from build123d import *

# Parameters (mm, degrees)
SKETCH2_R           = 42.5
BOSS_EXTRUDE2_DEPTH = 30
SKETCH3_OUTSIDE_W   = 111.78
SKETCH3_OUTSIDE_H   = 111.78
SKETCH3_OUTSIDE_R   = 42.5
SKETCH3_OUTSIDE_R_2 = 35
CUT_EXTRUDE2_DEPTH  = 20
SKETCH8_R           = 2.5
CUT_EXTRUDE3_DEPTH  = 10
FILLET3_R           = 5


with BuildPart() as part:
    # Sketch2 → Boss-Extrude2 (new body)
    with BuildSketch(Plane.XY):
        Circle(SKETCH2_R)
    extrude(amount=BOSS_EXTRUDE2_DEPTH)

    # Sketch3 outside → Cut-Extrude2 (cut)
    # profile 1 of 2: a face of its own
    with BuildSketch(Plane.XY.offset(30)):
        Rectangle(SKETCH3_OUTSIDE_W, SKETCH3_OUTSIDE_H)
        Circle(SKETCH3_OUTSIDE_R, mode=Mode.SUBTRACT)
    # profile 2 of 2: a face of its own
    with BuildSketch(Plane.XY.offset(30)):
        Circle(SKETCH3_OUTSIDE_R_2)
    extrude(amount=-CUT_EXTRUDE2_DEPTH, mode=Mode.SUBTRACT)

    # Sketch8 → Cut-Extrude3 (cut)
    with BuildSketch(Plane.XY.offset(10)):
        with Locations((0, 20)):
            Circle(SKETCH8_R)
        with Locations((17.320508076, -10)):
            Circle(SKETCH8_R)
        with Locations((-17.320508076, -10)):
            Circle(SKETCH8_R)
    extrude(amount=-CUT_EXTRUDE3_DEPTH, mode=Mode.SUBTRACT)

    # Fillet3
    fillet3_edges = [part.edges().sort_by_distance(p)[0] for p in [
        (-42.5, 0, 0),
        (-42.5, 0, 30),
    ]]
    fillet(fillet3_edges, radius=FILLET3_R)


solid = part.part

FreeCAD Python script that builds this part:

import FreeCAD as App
import Part
import Sketcher
from FreeCAD import Vector
Q = App.Units.Quantity


def edges_at(feature, points):
    """Names of the edges that pass closest to the given points."""
    edges = feature.Shape.Edges
    near = lambda p: min(range(len(edges)), key=lambda i: edges[i].distToShape(Part.Vertex(*p))[0])
    return sorted({f"Edge{near(p) + 1}" for p in points})

doc = App.newDocument("Part")
body = doc.addObject("PartDesign::Body", "Body")

sketch1 = body.newObject("Sketcher::SketchObject", "Sketch")
sketch1.AttachmentSupport = (doc.getObject("XY_Plane"), [""])
sketch1.MapMode = "FlatFace"
sketch1.addGeometry(Part.Circle(Vector(0, 0, 0), Vector(0, 0, 1), 42), False)
sketch1.addConstraint(Sketcher.Constraint("Coincident", 0, 3, -1, 1))
sketch1.addConstraint(Sketcher.Constraint("Diameter", 0, Q("85 mm")))
pad1 = body.newObject("PartDesign::Pad", "Pad")
pad1.Profile = sketch1
pad1.Length = 30

sketch2 = body.newObject("Sketcher::SketchObject", "Sketch001")
sketch2.AttachmentSupport = (doc.getObject("XY_Plane"), [""])
sketch2.MapMode = "FlatFace"
sketch2.AttachmentOffset = App.Placement(Vector(0, 0, 30), App.Rotation())
sketch2.addGeometry(Part.LineSegment(Vector(-56, 56, 0), Vector(-56, -56, 0)), False)
sketch2.addGeometry(Part.LineSegment(Vector(-56, -56, 0), Vector(56, -56, 0)), False)
sketch2.addGeometry(Part.LineSegment(Vector(56, -56, 0), Vector(56, 56, 0)), False)
sketch2.addGeometry(Part.LineSegment(Vector(56, 56, 0), Vector(-56, 56, 0)), False)
sketch2.addGeometry(Part.Circle(Vector(0, 0, 0), Vector(0, 0, 1), 42), False)
sketch2.addGeometry(Part.Circle(Vector(0, 0, 0), Vector(0, 0, 1), 35), False)
sketch2.addConstraint(Sketcher.Constraint("Coincident", 0, 2, 1, 1))
sketch2.addConstraint(Sketcher.Constraint("Coincident", 1, 2, 2, 1))
sketch2.addConstraint(Sketcher.Constraint("Coincident", 2, 2, 3, 1))
sketch2.addConstraint(Sketcher.Constraint("Coincident", 3, 2, 0, 1))
sketch2.addConstraint(Sketcher.Constraint("Vertical", 0))
sketch2.addConstraint(Sketcher.Constraint("Horizontal", 1))
sketch2.addConstraint(Sketcher.Constraint("Vertical", 2))
sketch2.addConstraint(Sketcher.Constraint("Horizontal", 3))
sketch2.addConstraint(Sketcher.Constraint("Coincident", 4, 3, -1, 1))
sketch2.addConstraint(Sketcher.Constraint("Coincident", 5, 3, -1, 1))
sketch2.addConstraint(Sketcher.Constraint("Symmetric", 0, 2, 2, 2, -1, 1))
sketch2.addConstraint(Sketcher.Constraint("Equal", 3, 0))
sketch2.addConstraint(Sketcher.Constraint("Diameter", 4, Q("85 mm")))
sketch2.addConstraint(Sketcher.Constraint("Diameter", 5, Q("70 mm")))
sketch2.addConstraint(Sketcher.Constraint("DistanceX", 1, 1, 1, 2, Q("111.78 mm")))
pocket1 = body.newObject("PartDesign::Pocket", "Pocket")
pocket1.Profile = sketch2
pocket1.Length = 20

sketch3 = body.newObject("Sketcher::SketchObject", "Sketch002")
sketch3.AttachmentSupport = (doc.getObject("XY_Plane"), [""])
sketch3.MapMode = "FlatFace"
sketch3.AttachmentOffset = App.Placement(Vector(0, 0, 10), App.Rotation())
sketch3.addGeometry(Part.Circle(Vector(0, 20, 0), Vector(0, 0, 1), 2.5), False)
sketch3.addGeometry(Part.Circle(Vector(17.3, -10, 0), Vector(0, 0, 1), 2.5), False)
sketch3.addGeometry(Part.Circle(Vector(-17.3, -10, 0), Vector(0, 0, 1), 2.5), False)
sketch3.addConstraint(Sketcher.Constraint("Equal", 0, 1))
sketch3.addConstraint(Sketcher.Constraint("Equal", 1, 2))
sketch3.addConstraint(Sketcher.Constraint("Symmetric", 1, 3, 2, 3, -2))
sketch3.addConstraint(Sketcher.Constraint("PointOnObject", 0, 3, -2))
sketch3.addConstraint(Sketcher.Constraint("Diameter", 0, Q("5 mm")))
sketch3.addConstraint(Sketcher.Constraint("DistanceY", -1, 1, 0, 3, Q("20 mm")))
sketch3.addConstraint(Sketcher.Constraint("DistanceY", 1, 3, -1, 1, Q("10 mm")))
sketch3.addConstraint(Sketcher.Constraint("DistanceX", -1, 1, 1, 3, Q("17.320508 mm")))
pocket2 = body.newObject("PartDesign::Pocket", "Pocket001")
pocket2.Profile = sketch3
pocket2.Length = 10
doc.recompute()

fillet = body.newObject("PartDesign::Fillet", "Fillet")
fillet.Base = (pocket2, edges_at(pocket2, [(-42.5, 0, 0), (-42.5, 0, 30)]))
fillet.Radius = 5

doc.recompute()
